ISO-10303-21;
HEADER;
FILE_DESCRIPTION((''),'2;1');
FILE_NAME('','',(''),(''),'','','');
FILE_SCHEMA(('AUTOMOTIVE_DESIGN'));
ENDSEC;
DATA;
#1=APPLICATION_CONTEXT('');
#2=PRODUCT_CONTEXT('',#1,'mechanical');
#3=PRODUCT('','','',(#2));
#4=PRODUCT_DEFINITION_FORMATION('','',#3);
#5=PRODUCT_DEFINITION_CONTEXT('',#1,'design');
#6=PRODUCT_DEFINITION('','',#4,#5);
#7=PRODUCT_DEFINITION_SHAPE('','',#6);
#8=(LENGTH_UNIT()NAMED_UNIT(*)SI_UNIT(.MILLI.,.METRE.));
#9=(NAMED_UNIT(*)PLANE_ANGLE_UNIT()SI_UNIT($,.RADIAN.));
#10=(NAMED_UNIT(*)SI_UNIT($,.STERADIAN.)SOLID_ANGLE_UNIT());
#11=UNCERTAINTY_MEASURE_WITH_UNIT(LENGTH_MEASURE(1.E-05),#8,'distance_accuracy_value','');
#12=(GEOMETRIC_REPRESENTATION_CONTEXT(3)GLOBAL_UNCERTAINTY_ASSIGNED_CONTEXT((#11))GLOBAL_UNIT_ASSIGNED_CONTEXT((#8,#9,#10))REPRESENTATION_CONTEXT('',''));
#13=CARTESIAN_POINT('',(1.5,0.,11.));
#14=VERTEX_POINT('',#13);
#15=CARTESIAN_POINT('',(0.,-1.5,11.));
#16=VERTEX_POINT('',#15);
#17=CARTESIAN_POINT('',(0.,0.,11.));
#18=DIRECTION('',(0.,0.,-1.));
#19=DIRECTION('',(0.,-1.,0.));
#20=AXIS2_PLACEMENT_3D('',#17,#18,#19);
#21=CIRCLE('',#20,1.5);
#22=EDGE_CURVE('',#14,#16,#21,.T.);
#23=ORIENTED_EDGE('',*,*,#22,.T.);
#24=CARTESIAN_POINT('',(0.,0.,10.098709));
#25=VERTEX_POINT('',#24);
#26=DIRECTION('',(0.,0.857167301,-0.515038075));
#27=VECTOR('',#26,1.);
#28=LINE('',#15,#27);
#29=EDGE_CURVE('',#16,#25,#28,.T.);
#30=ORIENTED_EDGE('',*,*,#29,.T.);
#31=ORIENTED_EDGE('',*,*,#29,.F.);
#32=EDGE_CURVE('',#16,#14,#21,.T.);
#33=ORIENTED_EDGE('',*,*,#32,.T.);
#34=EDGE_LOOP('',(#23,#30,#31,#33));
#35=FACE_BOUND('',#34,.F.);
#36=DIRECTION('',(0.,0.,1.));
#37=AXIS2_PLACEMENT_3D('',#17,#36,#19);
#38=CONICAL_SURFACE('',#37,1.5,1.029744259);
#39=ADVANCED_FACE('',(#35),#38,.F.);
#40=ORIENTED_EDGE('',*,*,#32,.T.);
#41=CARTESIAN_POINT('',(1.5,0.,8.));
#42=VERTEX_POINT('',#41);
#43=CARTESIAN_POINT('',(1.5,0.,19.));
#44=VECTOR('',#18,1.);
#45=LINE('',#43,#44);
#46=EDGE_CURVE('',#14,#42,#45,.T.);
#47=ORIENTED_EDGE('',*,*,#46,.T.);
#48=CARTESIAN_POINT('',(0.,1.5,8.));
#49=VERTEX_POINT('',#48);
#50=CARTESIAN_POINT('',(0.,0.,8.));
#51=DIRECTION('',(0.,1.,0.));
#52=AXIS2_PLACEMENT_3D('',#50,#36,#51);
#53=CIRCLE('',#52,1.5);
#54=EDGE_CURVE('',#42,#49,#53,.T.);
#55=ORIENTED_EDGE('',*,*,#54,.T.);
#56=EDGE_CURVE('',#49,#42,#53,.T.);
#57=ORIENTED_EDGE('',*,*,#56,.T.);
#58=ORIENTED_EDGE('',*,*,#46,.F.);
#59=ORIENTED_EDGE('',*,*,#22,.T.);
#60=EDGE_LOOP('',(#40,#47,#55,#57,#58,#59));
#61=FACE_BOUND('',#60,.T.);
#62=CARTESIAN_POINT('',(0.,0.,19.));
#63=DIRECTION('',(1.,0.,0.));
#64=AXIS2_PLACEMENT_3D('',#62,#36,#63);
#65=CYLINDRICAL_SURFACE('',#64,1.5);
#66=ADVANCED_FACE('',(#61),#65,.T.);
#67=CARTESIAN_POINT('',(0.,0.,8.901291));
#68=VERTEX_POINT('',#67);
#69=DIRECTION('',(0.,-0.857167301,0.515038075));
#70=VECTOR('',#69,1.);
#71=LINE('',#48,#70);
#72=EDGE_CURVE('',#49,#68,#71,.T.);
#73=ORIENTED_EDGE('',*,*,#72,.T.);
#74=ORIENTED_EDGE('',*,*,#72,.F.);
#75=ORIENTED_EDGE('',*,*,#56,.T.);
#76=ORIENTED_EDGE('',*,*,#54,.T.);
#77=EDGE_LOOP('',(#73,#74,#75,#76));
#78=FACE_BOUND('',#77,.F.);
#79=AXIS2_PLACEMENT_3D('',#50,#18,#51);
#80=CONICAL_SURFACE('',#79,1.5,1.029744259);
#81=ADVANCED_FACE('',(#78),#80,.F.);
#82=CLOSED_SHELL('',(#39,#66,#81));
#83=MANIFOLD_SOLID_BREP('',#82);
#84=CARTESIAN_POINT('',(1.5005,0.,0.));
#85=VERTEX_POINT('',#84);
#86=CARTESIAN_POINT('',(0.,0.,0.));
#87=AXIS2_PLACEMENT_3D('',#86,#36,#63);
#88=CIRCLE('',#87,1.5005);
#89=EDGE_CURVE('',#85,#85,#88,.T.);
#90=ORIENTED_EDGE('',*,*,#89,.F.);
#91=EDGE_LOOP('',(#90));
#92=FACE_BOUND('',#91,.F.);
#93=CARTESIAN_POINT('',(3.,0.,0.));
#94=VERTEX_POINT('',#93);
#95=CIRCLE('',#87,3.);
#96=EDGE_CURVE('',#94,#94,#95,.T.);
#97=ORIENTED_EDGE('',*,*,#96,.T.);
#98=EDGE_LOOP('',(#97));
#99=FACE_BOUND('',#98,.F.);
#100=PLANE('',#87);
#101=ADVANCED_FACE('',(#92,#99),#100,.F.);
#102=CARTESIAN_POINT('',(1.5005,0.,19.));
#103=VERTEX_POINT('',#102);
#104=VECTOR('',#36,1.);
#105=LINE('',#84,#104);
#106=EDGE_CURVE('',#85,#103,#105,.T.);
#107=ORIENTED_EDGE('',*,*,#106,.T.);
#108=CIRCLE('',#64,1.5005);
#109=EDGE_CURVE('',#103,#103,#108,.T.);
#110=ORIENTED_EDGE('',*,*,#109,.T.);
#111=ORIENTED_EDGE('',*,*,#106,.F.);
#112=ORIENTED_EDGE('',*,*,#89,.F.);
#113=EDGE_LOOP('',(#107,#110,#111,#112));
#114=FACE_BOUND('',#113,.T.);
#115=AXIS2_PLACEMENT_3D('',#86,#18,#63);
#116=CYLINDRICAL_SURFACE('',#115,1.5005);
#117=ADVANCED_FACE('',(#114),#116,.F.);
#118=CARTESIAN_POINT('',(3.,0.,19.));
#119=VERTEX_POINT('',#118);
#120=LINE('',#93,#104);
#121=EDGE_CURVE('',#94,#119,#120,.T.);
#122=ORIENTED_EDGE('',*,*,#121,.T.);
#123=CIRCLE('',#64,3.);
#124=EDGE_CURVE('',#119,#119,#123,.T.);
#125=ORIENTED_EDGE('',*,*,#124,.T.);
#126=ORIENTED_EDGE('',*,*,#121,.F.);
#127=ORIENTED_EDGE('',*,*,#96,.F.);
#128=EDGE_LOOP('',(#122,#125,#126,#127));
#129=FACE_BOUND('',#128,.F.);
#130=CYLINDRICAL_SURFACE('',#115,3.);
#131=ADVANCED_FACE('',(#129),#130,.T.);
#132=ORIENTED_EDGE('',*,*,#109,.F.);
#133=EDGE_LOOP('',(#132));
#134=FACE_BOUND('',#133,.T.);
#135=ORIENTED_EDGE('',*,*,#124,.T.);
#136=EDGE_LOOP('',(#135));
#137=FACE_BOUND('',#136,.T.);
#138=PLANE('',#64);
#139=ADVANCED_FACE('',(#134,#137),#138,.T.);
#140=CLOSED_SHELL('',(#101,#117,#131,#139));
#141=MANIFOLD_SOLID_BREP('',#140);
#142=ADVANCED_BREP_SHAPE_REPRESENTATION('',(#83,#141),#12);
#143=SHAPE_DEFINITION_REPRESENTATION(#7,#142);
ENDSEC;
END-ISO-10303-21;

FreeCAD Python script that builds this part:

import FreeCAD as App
import Part
import Sketcher
from FreeCAD import Vector
Q = App.Units.Quantity

doc = App.newDocument("Part")
body = doc.addObject("PartDesign::Body", "Body")
body.AllowCompound = True

sketch1 = doc.addObject("Sketcher::SketchObject", "Sketch")
body.addObject(sketch1)
sketch1.AttachmentSupport = (doc.XY_Plane, [""])
sketch1.MapMode = "FlatFace"
sketch1.addGeometry([
    Part.Circle(Vector(0, 0, 0), Vector(0, 0, 1), 3),
    Part.Circle(Vector(0, 0, 0), Vector(0, 0, 1), 1.5),
], False)
sketch1.addConstraint([
    Sketcher.Constraint("Coincident", 0, 3, -1, 1),
    Sketcher.Constraint("Coincident", 1, 3, -1, 1),
    Sketcher.Constraint("Diameter", 0, Q("6 mm")),
    Sketcher.Constraint("Diameter", 1, Q("3.001 mm")),
])
pad1 = doc.addObject("PartDesign::Pad", "Pad")
body.addObject(pad1)
pad1.Profile = sketch1
pad1.Length = 19

sketch2 = doc.addObject("Sketcher::SketchObject", "Sketch001")
body.addObject(sketch2)
sketch2.AttachmentSupport = (doc.XY_Plane, [""])
sketch2.MapMode = "FlatFace"
sketch2.AttachmentOffset = App.Placement(Vector(0, 0, 19), App.Rotation())
sketch2.addGeometry(Part.Circle(Vector(0, 0, 0), Vector(0, 0, 1), 1.5), False)
sketch2.addConstraint([
    Sketcher.Constraint("Coincident", 0, 3, -1, 1),
    Sketcher.Constraint("Diameter", 0, Q("3 mm")),
])
pad2 = doc.addObject("PartDesign::Pad", "Pad001")
body.addObject(pad2)
pad2.Profile = sketch2
pad2.Length = 19
pad2.Reversed = True

sketch3 = doc.addObject("Sketcher::SketchObject", "Sketch002")
body.addObject(sketch3)
sketch3.AttachmentSupport = (doc.XY_Plane, [""])
sketch3.MapMode = "FlatFace"
sketch3.AttachmentOffset = App.Placement(Vector(0, 0, 19), App.Rotation())
sketch3.addGeometry(Part.Circle(Vector(0, 0, 0), Vector(0, 0, 1), 1.5), False)
sketch3.addConstraint([
    Sketcher.Constraint("Coincident", 0, 3, -1, 1),
    Sketcher.Constraint("Diameter", 0, Q("3 mm")),
])
doc.recompute()
hole = doc.addObject("PartDesign::Hole", "Hole")
body.addObject(hole)
hole.Profile = sketch3
hole.ThreadType = "None"
hole.Diameter = 3
hole.DepthType = "Dimension"
hole.Depth = 8
hole.DrillPoint = "Angled"
hole.DrillPointAngle = 118

sketch4 = doc.addObject("Sketcher::SketchObject", "Sketch003")
body.addObject(sketch4)
sketch4.AttachmentSupport = (doc.XY_Plane, [""])
sketch4.MapMode = "FlatFace"
sketch4.addGeometry(Part.Circle(Vector(0, 0, 0), Vector(0, 0, 1), 1.5), False)
sketch4.addConstraint([
    Sketcher.Constraint("Coincident", 0, 3, -1, 1),
    Sketcher.Constraint("Diameter", 0, Q("3 mm")),
])
doc.recompute()
hole2 = doc.addObject("PartDesign::Hole", "Hole001")
body.addObject(hole2)
hole2.Profile = sketch4
hole2.ThreadType = "None"
hole2.Diameter = 3
hole2.DepthType = "Dimension"
hole2.Depth = 8
hole2.DrillPoint = "Angled"
hole2.DrillPointAngle = 118
hole2.Reversed = True

doc.recompute()
